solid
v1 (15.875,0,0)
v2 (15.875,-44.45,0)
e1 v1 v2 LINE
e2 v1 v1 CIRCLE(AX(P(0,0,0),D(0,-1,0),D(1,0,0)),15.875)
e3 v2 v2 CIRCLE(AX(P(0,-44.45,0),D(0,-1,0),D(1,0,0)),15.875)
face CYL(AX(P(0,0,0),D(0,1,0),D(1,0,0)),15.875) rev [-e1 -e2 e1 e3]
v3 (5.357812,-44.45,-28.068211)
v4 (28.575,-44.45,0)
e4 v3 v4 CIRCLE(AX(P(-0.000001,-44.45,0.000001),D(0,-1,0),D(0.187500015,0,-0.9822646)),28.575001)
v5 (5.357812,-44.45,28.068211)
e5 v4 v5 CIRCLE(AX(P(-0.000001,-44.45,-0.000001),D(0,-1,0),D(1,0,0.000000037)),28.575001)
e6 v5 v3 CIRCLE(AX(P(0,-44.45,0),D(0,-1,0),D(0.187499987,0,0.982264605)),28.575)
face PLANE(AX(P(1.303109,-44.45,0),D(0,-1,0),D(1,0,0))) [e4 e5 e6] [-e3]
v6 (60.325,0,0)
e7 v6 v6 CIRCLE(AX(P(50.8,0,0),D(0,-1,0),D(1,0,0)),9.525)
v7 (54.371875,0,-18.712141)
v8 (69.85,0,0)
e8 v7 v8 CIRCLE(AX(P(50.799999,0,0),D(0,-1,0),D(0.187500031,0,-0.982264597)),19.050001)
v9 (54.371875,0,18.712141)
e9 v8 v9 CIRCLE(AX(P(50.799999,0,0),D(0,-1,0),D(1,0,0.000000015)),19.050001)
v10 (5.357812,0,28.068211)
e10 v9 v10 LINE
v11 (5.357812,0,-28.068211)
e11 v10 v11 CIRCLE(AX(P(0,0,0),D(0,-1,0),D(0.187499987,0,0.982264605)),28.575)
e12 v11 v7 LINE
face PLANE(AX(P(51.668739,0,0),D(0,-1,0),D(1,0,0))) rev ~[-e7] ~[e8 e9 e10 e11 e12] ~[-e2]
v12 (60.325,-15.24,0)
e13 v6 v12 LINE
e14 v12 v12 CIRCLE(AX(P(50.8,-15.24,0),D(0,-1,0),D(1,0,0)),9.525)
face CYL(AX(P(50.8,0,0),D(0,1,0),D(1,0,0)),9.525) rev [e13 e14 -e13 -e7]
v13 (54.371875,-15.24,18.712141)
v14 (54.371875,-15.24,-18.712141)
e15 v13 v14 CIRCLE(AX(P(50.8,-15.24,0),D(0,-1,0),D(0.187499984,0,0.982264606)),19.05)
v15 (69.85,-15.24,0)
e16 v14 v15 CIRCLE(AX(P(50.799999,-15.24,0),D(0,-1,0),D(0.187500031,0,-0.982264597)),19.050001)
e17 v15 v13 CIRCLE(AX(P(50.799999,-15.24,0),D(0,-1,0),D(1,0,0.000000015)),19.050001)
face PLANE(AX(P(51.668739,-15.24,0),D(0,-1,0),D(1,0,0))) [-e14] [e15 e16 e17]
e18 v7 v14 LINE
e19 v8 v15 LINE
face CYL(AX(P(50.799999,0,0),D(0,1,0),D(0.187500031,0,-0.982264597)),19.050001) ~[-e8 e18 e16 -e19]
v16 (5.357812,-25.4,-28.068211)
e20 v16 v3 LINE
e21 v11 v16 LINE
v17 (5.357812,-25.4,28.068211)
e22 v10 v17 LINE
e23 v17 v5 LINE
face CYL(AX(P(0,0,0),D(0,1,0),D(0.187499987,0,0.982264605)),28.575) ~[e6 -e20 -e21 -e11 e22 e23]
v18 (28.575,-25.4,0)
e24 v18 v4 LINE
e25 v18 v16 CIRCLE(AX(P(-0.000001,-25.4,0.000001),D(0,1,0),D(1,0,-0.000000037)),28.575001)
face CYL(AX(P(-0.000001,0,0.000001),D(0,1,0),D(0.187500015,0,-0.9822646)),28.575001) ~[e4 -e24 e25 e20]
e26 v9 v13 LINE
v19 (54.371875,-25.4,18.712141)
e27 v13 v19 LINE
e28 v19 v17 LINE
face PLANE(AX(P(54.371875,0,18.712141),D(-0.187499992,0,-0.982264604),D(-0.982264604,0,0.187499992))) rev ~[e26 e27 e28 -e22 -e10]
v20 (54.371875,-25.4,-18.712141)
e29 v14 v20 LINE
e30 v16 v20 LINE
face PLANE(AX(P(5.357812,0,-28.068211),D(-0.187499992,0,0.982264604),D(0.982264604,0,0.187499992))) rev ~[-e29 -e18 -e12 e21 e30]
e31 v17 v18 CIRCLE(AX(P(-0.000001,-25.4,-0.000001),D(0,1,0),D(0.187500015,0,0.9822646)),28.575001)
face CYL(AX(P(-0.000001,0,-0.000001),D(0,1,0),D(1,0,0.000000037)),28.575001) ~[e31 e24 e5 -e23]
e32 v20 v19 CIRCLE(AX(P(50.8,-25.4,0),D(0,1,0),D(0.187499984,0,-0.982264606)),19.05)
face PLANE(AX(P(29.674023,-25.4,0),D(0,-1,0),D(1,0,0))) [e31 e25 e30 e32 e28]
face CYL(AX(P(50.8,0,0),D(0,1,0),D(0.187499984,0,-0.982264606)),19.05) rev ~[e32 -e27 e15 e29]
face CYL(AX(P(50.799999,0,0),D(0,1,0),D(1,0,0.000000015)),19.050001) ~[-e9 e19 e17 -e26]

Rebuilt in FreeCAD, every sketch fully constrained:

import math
import FreeCAD as App
import Part
import Sketcher

V = App.Vector
Q = App.Units.Quantity

doc = App.newDocument("Part")
body = doc.addObject("PartDesign::Body", "Body")

# Sketch on XZ plane
sketch1 = body.newObject("Sketcher::SketchObject", "Sketch")
sketch1.AttachmentSupport = (doc.getObject("XZ_Plane"), [""])
sketch1.MapMode = "FlatFace"
sketch1.addGeometry(Part.ArcOfCircle(Part.Circle(V(-0.000001, -0.000001, 0), V(0, 0, 1), 28.575001), math.radians(0.000002), math.radians(79.193076)), False)
sketch1.addGeometry(Part.ArcOfCircle(Part.Circle(V(0, 0, 0), V(0, 0, 1), 28.575), math.radians(79.193078), math.radians(280.806922)), False)
sketch1.addGeometry(Part.ArcOfCircle(Part.Circle(V(-0.000001, 0.000001, 0), V(0, 0, 1), 28.575001), math.radians(-79.193076), math.radians(-0.000002)), False)
sketch1.addGeometry(Part.Circle(V(0, 0, 0), V(0, 0, 1), 15.875), False)
sketch1.addConstraint(Sketcher.Constraint("Tangent", 0, 2, 1, 1))
sketch1.addConstraint(Sketcher.Constraint("Tangent", 1, 2, 2, 1))
sketch1.addConstraint(Sketcher.Constraint("Tangent", 2, 2, 0, 1))
sketch1.addConstraint(Sketcher.Constraint("Coincident", 0, 3, -1, 1))
sketch1.addConstraint(Sketcher.Constraint("Coincident", 3, 3, -1, 1))
sketch1.addConstraint(Sketcher.Constraint("PointOnObject", 2, 2, -1))
sketch1.addConstraint(Sketcher.Constraint("Vertical", 0, 2, 1, 2))
sketch1.addConstraint(Sketcher.Constraint("Diameter", 3, Q("1.25 in")))
sketch1.addConstraint(Sketcher.Constraint("Radius", 0, Q("1.125 in")))
sketch1.addConstraint(Sketcher.Constraint("DistanceY", -1, 1, 0, 2, 28.068211))
pad1 = body.newObject("PartDesign::Pad", "Pad")
pad1.Profile = sketch1
pad1.Length = Q("1.75 in")

# Sketch on XZ plane
sketch2 = body.newObject("Sketcher::SketchObject", "Sketch001")
sketch2.AttachmentSupport = (doc.getObject("XZ_Plane"), [""])
sketch2.MapMode = "FlatFace"
sketch2.addGeometry(Part.ArcOfCircle(Part.Circle(V(50.8, 0, 0), V(0, 0, 1), 19.05), math.radians(79.193078), math.radians(280.806922)), False)
sketch2.addGeometry(Part.LineSegment(V(54.371875, 18.712141, 0), V(5.357812, 28.068211, 0)), False)
sketch2.addGeometry(Part.ArcOfCircle(Part.Circle(V(-0.000001, -0.000001, 0), V(0, 0, 1), 28.575001), math.radians(0.000002), math.radians(79.193076)), False)
sketch2.addGeometry(Part.ArcOfCircle(Part.Circle(V(-0.000001, 0.000001, 0), V(0, 0, 1), 28.575001), math.radians(-79.193076), math.radians(-0.000002)), False)
sketch2.addGeometry(Part.LineSegment(V(5.357812, -28.068211, 0), V(54.371875, -18.712141, 0)), False)
sketch2.addConstraint(Sketcher.Constraint("Tangent", 0, 1, 1, 1))
sketch2.addConstraint(Sketcher.Constraint("Tangent", 1, 2, 2, 2))
sketch2.addConstraint(Sketcher.Constraint("Tangent", 2, 1, 3, 2))
sketch2.addConstraint(Sketcher.Constraint("Tangent", 3, 1, 4, 1))
sketch2.addConstraint(Sketcher.Constraint("Tangent", 4, 2, 0, 2))
sketch2.addConstraint(Sketcher.Constraint("Coincident", 2, 3, -1, 1))
sketch2.addConstraint(Sketcher.Constraint("Equal", 2, 3))
sketch2.addConstraint(Sketcher.Constraint("PointOnObject", 0, 3, -1))
sketch2.addConstraint(Sketcher.Constraint("PointOnObject", 2, 1, -1))
sketch2.addConstraint(Sketcher.Constraint("Radius", 0, Q("0.75 in")))
sketch2.addConstraint(Sketcher.Constraint("DistanceX", -1, 1, 0, 3, Q("2 in")))
sketch2.addConstraint(Sketcher.Constraint("Radius", 2, Q("1.125 in")))
pad2 = body.newObject("PartDesign::Pad", "Pad001")
pad2.Profile = sketch2
pad2.Length = Q("1 in")

# Sketch on XZ plane
sketch3 = body.newObject("Sketcher::SketchObject", "Sketch002")
sketch3.AttachmentSupport = (doc.getObject("XZ_Plane"), [""])
sketch3.MapMode = "FlatFace"
sketch3.addGeometry(Part.ArcOfCircle(Part.Circle(V(50.799999, 0, 0), V(0, 0, 1), 19.050001), math.radians(-79.193075), math.radians(-0.000001)), False)
sketch3.addGeometry(Part.ArcOfCircle(Part.Circle(V(50.799999, 0, 0), V(0, 0, 1), 19.050001), math.radians(0.000001), math.radians(79.193075)), False)
sketch3.addGeometry(Part.ArcOfCircle(Part.Circle(V(50.8, 0, 0), V(0, 0, 1), 19.05), math.radians(79.193078), math.radians(280.806922)), False)
sketch3.addGeometry(Part.Circle(V(50.8, 0, 0), V(0, 0, 1), 9.525), False)
sketch3.addConstraint(Sketcher.Constraint("Tangent", 0, 2, 1, 1))
sketch3.addConstraint(Sketcher.Constraint("Tangent", 1, 2, 2, 1))
sketch3.addConstraint(Sketcher.Constraint("Tangent", 2, 2, 0, 1))
sketch3.addConstraint(Sketcher.Constraint("Coincident", 3, 3, 0, 3))
sketch3.addConstraint(Sketcher.Constraint("Symmetric", 1, 2, 2, 2, -1))
sketch3.addConstraint(Sketcher.Constraint("PointOnObject", 0, 2, -1))
sketch3.addConstraint(Sketcher.Constraint("Diameter", 3, Q("0.75 in")))
sketch3.addConstraint(Sketcher.Constraint("Radius", 0, Q("0.75 in")))
sketch3.addConstraint(Sketcher.Constraint("DistanceX", -1, 1, 0, 3, Q("2 in")))
sketch3.addConstraint(Sketcher.Constraint("DistanceX", -1, 1, 1, 2, Q("2.140625 in")))
pad3 = body.newObject("PartDesign::Pad", "Pad002")
pad3.Profile = sketch3
pad3.Length = Q("0.6 in")

doc.recompute()
